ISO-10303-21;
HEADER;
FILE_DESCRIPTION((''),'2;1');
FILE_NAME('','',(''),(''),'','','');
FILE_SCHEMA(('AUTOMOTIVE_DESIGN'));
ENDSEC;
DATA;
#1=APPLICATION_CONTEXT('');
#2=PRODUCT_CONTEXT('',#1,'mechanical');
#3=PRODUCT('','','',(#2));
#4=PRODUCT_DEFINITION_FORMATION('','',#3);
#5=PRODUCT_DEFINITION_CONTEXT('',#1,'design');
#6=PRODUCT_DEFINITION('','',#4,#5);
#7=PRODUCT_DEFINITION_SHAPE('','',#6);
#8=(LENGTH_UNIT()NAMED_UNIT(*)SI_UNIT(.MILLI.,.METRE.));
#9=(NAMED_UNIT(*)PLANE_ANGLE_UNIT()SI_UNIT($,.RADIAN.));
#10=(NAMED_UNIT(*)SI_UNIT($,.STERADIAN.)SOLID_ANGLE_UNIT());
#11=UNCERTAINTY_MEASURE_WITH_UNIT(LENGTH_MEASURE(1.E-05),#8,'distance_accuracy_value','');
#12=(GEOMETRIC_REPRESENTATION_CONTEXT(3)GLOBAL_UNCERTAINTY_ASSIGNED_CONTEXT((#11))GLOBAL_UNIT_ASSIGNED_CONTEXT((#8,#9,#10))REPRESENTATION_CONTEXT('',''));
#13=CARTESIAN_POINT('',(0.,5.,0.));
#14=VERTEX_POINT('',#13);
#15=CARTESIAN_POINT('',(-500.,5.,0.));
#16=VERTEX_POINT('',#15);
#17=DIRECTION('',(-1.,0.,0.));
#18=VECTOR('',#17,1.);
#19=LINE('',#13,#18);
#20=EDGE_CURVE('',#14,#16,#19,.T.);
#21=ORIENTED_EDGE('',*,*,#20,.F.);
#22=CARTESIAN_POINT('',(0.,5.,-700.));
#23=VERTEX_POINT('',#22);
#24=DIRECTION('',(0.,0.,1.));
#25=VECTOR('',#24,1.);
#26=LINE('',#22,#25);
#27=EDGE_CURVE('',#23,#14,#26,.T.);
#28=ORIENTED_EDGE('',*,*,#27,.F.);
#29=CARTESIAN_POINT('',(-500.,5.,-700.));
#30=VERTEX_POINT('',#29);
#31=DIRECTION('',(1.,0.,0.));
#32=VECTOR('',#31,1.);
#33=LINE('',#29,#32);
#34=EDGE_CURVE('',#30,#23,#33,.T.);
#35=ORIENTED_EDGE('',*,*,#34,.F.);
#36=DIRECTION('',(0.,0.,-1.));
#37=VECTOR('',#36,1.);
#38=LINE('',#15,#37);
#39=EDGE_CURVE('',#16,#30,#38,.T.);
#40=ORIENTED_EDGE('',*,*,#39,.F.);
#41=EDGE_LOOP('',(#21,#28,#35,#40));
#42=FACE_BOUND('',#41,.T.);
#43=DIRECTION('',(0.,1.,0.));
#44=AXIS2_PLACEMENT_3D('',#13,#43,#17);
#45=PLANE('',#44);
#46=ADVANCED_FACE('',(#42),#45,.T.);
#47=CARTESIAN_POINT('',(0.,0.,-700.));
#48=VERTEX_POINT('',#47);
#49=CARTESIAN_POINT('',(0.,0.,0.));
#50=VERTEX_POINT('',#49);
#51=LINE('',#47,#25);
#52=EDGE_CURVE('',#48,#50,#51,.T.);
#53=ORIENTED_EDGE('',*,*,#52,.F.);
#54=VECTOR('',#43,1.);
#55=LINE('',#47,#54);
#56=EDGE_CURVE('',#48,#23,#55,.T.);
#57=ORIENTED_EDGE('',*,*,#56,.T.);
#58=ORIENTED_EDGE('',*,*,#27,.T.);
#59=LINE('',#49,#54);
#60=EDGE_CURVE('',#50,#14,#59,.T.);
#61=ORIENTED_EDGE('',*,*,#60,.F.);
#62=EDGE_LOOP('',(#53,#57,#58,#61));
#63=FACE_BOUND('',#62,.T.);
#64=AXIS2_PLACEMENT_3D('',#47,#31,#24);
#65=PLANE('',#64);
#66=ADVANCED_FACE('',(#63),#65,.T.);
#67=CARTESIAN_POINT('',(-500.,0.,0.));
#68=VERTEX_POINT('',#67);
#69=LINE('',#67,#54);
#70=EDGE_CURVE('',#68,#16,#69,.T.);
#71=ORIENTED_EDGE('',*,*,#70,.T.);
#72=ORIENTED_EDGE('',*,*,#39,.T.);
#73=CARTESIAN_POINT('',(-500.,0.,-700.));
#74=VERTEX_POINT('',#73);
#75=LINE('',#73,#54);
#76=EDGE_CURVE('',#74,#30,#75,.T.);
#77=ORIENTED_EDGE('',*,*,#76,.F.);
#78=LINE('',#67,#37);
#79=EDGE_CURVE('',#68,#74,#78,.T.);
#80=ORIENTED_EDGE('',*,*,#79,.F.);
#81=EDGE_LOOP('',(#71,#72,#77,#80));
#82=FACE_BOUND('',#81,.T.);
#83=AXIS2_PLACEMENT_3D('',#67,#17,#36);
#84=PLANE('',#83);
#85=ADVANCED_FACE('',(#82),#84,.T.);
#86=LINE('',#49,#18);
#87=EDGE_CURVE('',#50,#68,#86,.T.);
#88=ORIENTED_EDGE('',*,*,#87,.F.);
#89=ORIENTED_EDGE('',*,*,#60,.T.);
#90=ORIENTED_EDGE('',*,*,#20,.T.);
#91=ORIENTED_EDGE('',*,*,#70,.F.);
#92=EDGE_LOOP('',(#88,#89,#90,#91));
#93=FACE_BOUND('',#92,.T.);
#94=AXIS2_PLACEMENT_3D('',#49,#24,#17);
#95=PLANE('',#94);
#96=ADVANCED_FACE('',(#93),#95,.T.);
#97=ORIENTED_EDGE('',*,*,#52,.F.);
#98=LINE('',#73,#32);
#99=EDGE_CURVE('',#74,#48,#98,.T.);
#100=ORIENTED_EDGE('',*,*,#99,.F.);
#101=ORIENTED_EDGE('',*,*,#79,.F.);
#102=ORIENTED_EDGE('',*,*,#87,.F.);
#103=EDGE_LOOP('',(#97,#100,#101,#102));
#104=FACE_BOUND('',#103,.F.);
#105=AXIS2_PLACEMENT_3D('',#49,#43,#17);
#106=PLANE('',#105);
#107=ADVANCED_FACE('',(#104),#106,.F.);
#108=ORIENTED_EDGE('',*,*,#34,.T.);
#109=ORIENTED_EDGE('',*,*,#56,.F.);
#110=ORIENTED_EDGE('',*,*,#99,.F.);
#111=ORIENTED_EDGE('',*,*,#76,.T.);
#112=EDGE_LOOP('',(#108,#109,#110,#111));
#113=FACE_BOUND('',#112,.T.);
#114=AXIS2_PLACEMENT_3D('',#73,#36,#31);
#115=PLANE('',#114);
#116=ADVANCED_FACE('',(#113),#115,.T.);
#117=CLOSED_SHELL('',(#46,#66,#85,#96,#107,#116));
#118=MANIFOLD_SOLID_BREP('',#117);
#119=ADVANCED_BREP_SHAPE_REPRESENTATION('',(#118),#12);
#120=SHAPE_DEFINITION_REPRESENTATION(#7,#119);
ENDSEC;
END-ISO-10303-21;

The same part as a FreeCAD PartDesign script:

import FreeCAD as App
import Part
import Sketcher
from FreeCAD import Vector
Q = App.Units.Quantity


def add_polygon(sketch, points):
    """Adds a closed chain of lines whose ends are joined by coincident constraints."""
    first, n = sketch.GeometryCount, len(points)
    for a, b in zip(points, points[1:] + points[:1]):
        sketch.addGeometry(Part.LineSegment(App.Vector(*a, 0), App.Vector(*b, 0)), False)
    for i in range(n):
        sketch.addConstraint(Sketcher.Constraint("Coincident", first + i, 2, first + (i + 1) % n, 1))

doc = App.newDocument("Part")
params = doc.addObject("Spreadsheet::Sheet", "Params")
for row, (alias, value) in enumerate([
    ("sketch1_width", "500 mm"),
    ("sketch1_height", "700 mm"),
    ("pad1_length", "5 mm"),
], start=1):
    params.set(f"A{row}", alias)
    params.set(f"B{row}", "=" + value)
    params.setAlias(f"B{row}", alias)

body = doc.addObject("PartDesign::Body", "Body")

# Sketch on XZ plane
sketch1 = body.newObject("Sketcher::SketchObject", "Sketch")
sketch1.AttachmentSupport = (doc.getObject("XZ_Plane"), [""])
sketch1.MapMode = "FlatFace"
add_polygon(sketch1, [(-500, 0), (0, 0), (0, -700), (-500, -700)])  # lines 0-3
sketch1.addConstraint([
    Sketcher.Constraint("Horizontal", 0),
    Sketcher.Constraint("Vertical", 1),
    Sketcher.Constraint("Horizontal", 2),
    Sketcher.Constraint("Vertical", 3),
    Sketcher.Constraint("Coincident", 0, 2, -1, 1),
    Sketcher.Constraint("DistanceX", 0, 1, 0, 2, Q("500 mm")),
    Sketcher.Constraint("DistanceY", 1, 2, 1, 1, Q("700 mm")),
])
sketch1.setExpression("Constraints[9]", "Params.sketch1_width")
sketch1.setExpression("Constraints[10]", "Params.sketch1_height")
pad1 = body.newObject("PartDesign::Pad", "Pad")
pad1.Profile = sketch1
pad1.setExpression("Length", "Params.pad1_length")
pad1.Reversed = True

doc.recompute()
